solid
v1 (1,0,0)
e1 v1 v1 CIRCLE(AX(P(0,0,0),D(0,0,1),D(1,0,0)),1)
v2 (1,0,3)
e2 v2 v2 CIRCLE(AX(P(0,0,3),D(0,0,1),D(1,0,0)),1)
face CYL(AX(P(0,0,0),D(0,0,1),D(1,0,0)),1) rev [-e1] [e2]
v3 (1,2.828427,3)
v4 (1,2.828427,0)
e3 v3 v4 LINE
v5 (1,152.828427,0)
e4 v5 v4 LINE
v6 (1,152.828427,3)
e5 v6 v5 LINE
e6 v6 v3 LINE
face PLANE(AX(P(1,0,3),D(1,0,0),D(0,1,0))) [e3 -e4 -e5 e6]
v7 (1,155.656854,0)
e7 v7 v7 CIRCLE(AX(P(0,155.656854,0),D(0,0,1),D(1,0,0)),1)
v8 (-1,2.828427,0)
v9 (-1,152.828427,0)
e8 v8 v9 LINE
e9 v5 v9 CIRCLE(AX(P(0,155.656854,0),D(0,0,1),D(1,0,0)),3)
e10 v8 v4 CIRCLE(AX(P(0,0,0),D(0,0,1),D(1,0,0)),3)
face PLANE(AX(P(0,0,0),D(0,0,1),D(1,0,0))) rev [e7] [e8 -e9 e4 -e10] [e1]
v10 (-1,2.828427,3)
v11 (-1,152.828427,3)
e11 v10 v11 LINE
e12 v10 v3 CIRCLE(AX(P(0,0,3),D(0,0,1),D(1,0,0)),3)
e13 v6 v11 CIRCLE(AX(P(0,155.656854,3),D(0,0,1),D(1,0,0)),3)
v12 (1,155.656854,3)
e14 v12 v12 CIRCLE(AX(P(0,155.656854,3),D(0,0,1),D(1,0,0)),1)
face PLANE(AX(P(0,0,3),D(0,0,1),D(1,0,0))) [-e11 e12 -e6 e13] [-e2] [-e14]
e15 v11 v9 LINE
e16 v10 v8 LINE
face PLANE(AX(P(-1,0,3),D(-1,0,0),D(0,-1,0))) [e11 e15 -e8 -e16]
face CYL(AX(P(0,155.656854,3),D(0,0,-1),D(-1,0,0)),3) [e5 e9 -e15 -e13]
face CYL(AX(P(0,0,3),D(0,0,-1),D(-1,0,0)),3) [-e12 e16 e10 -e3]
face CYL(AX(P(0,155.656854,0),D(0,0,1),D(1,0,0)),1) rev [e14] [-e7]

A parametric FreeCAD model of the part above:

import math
import FreeCAD as App
import Part
import Sketcher

doc = App.newDocument("Part")
body = doc.addObject("PartDesign::Body", "Body")

# Sketch on XY plane
sketch1 = doc.addObject("Sketcher::SketchObject", "Sketch")
body.addObject(sketch1)
sketch1.AttachmentSupport = (doc.XY_Plane, [""])
sketch1.MapMode = "FlatFace"
sketch1.addGeometry(Part.LineSegment(App.Vector(-1, 152.8, 0), App.Vector(-1, 2.8, 0)), False)
sketch1.addGeometry(Part.ArcOfCircle(Part.Circle(App.Vector(0, 0, 0), App.Vector(0, 0, 1), 3), math.radians(109), math.radians(360)), False)
sketch1.addGeometry(Part.ArcOfCircle(Part.Circle(App.Vector(0, 0, 0), App.Vector(0, 0, 1), 3), math.radians(0), math.radians(71)), False)
sketch1.addGeometry(Part.LineSegment(App.Vector(1, 2.8, 0), App.Vector(1, 152.8, 0)), False)
sketch1.addGeometry(Part.ArcOfCircle(Part.Circle(App.Vector(0, 155.7, 0), App.Vector(0, 0, 1), 3), math.radians(-71), math.radians(0)), False)
sketch1.addGeometry(Part.ArcOfCircle(Part.Circle(App.Vector(0, 155.7, 0), App.Vector(0, 0, 1), 3), math.radians(0), math.radians(251)), False)
sketch1.addConstraint(Sketcher.Constraint("Coincident", 0, 2, 1, 1))
sketch1.addConstraint(Sketcher.Constraint("Tangent", 1, 2, 2, 1))
sketch1.addConstraint(Sketcher.Constraint("Coincident", 2, 2, 3, 1))
sketch1.addConstraint(Sketcher.Constraint("Coincident", 3, 2, 4, 1))
sketch1.addConstraint(Sketcher.Constraint("Tangent", 4, 2, 5, 1))
sketch1.addConstraint(Sketcher.Constraint("Coincident", 5, 2, 0, 1))
sketch1.addConstraint(Sketcher.Constraint("Vertical", 0))
sketch1.addConstraint(Sketcher.Constraint("Vertical", 3))
sketch1.addConstraint(Sketcher.Constraint("Coincident", 1, 3, -1, 1))
sketch1.addConstraint(Sketcher.Constraint("Equal", 1, 2))
sketch1.addConstraint(Sketcher.Constraint("Equal", 2, 4))
sketch1.addConstraint(Sketcher.Constraint("Equal", 4, 5))
sketch1.addConstraint(Sketcher.Constraint("Symmetric", 3, 2, 5, 2, -2))
sketch1.addConstraint(Sketcher.Constraint("PointOnObject", 1, 2, -1))
sketch1.addConstraint(Sketcher.Constraint("Horizontal", 5, 3, 4, 2))
sketch1.addConstraint(Sketcher.Constraint("Radius", 1, 3.0))
sketch1.addConstraint(Sketcher.Constraint("DistanceY", 0, 2, 0, 1, 150.0))
sketch1.addConstraint(Sketcher.Constraint("DistanceX", 0, 2, -1, 1, 1.0))
pad1 = doc.addObject("PartDesign::Pad", "Pad")
body.addObject(pad1)
pad1.Profile = sketch1
pad1.Length = 3

# Sketch on XY plane
sketch2 = doc.addObject("Sketcher::SketchObject", "Sketch001")
body.addObject(sketch2)
sketch2.AttachmentSupport = (doc.XY_Plane, [""])
sketch2.MapMode = "FlatFace"
sketch2.AttachmentOffset = App.Placement(App.Vector(0, 0, 3), App.Rotation())
sketch2.addGeometry(Part.Circle(App.Vector(0, 0, 0), App.Vector(0, 0, 1), 1), False)
sketch2.addGeometry(Part.Circle(App.Vector(0, 155.7, 0), App.Vector(0, 0, 1), 1), False)
sketch2.addConstraint(Sketcher.Constraint("Coincident", 0, 3, -1, 1))
sketch2.addConstraint(Sketcher.Constraint("Equal", 0, 1))
sketch2.addConstraint(Sketcher.Constraint("PointOnObject", 1, 3, -2))
sketch2.addConstraint(Sketcher.Constraint("Diameter", 0, 2.0))
sketch2.addConstraint(Sketcher.Constraint("DistanceY", -1, 1, 1, 3, 155.656854))
pocket1 = doc.addObject("PartDesign::Pocket", "Pocket")
body.addObject(pocket1)
pocket1.Profile = sketch2
pocket1.Length = 3

doc.recompute()
